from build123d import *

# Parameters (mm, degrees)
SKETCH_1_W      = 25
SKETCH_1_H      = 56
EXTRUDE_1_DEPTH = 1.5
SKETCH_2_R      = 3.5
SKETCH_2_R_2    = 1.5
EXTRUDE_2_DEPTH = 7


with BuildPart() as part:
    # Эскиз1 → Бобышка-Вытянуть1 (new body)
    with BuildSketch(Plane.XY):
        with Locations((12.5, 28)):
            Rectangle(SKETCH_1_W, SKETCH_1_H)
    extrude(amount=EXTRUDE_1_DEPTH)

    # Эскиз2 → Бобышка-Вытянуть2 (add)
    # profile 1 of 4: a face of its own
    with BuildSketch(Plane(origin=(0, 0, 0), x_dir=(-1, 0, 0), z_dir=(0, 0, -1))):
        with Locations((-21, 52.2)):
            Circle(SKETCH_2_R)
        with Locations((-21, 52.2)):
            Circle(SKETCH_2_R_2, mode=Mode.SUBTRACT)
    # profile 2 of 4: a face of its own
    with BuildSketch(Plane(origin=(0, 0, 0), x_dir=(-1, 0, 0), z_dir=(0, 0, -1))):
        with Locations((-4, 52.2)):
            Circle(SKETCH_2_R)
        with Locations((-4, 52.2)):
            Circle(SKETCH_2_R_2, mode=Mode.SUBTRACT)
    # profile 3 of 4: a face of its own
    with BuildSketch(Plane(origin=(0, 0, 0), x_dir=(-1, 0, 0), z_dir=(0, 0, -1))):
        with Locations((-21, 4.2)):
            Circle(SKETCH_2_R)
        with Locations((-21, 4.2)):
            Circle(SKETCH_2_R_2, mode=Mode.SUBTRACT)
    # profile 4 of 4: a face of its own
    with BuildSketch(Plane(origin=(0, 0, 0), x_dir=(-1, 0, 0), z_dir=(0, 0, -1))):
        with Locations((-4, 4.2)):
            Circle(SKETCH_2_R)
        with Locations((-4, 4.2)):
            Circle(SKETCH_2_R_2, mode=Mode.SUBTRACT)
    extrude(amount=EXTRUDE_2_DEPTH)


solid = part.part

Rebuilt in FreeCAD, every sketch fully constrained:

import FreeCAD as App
import Part
import Sketcher
from FreeCAD import Vector
Q = App.Units.Quantity

doc = App.newDocument("Part")
body = doc.addObject("PartDesign::Body", "Body")

# Sketch on XY plane
sketch1 = body.newObject("Sketcher::SketchObject", "Sketch")
sketch1.AttachmentSupport = (doc.getObject("XY_Plane"), [""])
sketch1.MapMode = "FlatFace"
sketch1.addGeometry([
    Part.LineSegment(Vector(0, 56, 0), Vector(0, 0, 0)),
    Part.LineSegment(Vector(0, 0, 0), Vector(25, 0, 0)),
    Part.LineSegment(Vector(25, 0, 0), Vector(25, 56, 0)),
    Part.LineSegment(Vector(25, 56, 0), Vector(0, 56, 0)),
], False)
sketch1.addConstraint([
    Sketcher.Constraint("Coincident", 0, 2, 1, 1),
    Sketcher.Constraint("Coincident", 1, 2, 2, 1),
    Sketcher.Constraint("Coincident", 2, 2, 3, 1),
    Sketcher.Constraint("Coincident", 3, 2, 0, 1),
    Sketcher.Constraint("Vertical", 0),
    Sketcher.Constraint("Horizontal", 1),
    Sketcher.Constraint("Vertical", 2),
    Sketcher.Constraint("Horizontal", 3),
    Sketcher.Constraint("Coincident", 0, 2, -1, 1),
    Sketcher.Constraint("DistanceX", 1, 1, 1, 2, Q("25 mm")),
    Sketcher.Constraint("DistanceY", 0, 2, 0, 1, Q("56 mm")),
])
pad1 = body.newObject("PartDesign::Pad", "Pad")
pad1.Profile = sketch1
pad1.Length = 1.5

# Sketch on XY plane
sketch2 = body.newObject("Sketcher::SketchObject", "Sketch001")
sketch2.AttachmentSupport = (doc.getObject("XY_Plane"), [""])
sketch2.MapMode = "FlatFace"
sketch2.addGeometry([
    Part.Circle(Vector(21, 52.2, 0), Vector(0, 0, 1), 3.5),  # 0
    Part.Circle(Vector(21, 52.2, 0), Vector(0, 0, 1), 1.5),  # 1
    Part.Circle(Vector(4, 52.2, 0), Vector(0, 0, 1), 3.5),  # 2
    Part.Circle(Vector(4, 52.2, 0), Vector(0, 0, 1), 1.5),  # 3
    Part.Circle(Vector(21, 4.2, 0), Vector(0, 0, 1), 3.5),  # 4
    Part.Circle(Vector(21, 4.2, 0), Vector(0, 0, 1), 1.5),  # 5
    Part.Circle(Vector(4, 4.2, 0), Vector(0, 0, 1), 3.5),  # 6
    Part.Circle(Vector(4, 4.2, 0), Vector(0, 0, 1), 1.5),  # 7
], False)
sketch2.addConstraint([
    Sketcher.Constraint("Coincident", 1, 3, 0, 3),
    Sketcher.Constraint("Coincident", 3, 3, 2, 3),
    Sketcher.Constraint("Coincident", 5, 3, 4, 3),
    Sketcher.Constraint("Coincident", 7, 3, 6, 3),
    Sketcher.Constraint("Equal", 0, 2),
    Sketcher.Constraint("Equal", 1, 3),
    Sketcher.Constraint("Equal", 2, 4),
    Sketcher.Constraint("Equal", 3, 5),
    Sketcher.Constraint("Equal", 4, 6),
    Sketcher.Constraint("Equal", 5, 7),
    Sketcher.Constraint("Horizontal", 1, 3, 2, 3),
    Sketcher.Constraint("Horizontal", 5, 3, 6, 3),
    Sketcher.Constraint("Vertical", 1, 3, 4, 3),
    Sketcher.Constraint("Vertical", 3, 3, 6, 3),
    Sketcher.Constraint("Diameter", 0, Q("7 mm")),
    Sketcher.Constraint("Diameter", 1, Q("3 mm")),
    Sketcher.Constraint("DistanceX", -1, 1, 0, 3, Q("21 mm")),
    Sketcher.Constraint("DistanceX", -1, 1, 2, 3, Q("4 mm")),
    Sketcher.Constraint("DistanceY", 4, 3, 0, 3, Q("48 mm")),
    Sketcher.Constraint("DistanceY", -1, 1, 0, 3, Q("52.2 mm")),
])
pad2 = body.newObject("PartDesign::Pad", "Pad001")
pad2.Profile = sketch2
pad2.Length = 7
pad2.Reversed = True

doc.recompute()
